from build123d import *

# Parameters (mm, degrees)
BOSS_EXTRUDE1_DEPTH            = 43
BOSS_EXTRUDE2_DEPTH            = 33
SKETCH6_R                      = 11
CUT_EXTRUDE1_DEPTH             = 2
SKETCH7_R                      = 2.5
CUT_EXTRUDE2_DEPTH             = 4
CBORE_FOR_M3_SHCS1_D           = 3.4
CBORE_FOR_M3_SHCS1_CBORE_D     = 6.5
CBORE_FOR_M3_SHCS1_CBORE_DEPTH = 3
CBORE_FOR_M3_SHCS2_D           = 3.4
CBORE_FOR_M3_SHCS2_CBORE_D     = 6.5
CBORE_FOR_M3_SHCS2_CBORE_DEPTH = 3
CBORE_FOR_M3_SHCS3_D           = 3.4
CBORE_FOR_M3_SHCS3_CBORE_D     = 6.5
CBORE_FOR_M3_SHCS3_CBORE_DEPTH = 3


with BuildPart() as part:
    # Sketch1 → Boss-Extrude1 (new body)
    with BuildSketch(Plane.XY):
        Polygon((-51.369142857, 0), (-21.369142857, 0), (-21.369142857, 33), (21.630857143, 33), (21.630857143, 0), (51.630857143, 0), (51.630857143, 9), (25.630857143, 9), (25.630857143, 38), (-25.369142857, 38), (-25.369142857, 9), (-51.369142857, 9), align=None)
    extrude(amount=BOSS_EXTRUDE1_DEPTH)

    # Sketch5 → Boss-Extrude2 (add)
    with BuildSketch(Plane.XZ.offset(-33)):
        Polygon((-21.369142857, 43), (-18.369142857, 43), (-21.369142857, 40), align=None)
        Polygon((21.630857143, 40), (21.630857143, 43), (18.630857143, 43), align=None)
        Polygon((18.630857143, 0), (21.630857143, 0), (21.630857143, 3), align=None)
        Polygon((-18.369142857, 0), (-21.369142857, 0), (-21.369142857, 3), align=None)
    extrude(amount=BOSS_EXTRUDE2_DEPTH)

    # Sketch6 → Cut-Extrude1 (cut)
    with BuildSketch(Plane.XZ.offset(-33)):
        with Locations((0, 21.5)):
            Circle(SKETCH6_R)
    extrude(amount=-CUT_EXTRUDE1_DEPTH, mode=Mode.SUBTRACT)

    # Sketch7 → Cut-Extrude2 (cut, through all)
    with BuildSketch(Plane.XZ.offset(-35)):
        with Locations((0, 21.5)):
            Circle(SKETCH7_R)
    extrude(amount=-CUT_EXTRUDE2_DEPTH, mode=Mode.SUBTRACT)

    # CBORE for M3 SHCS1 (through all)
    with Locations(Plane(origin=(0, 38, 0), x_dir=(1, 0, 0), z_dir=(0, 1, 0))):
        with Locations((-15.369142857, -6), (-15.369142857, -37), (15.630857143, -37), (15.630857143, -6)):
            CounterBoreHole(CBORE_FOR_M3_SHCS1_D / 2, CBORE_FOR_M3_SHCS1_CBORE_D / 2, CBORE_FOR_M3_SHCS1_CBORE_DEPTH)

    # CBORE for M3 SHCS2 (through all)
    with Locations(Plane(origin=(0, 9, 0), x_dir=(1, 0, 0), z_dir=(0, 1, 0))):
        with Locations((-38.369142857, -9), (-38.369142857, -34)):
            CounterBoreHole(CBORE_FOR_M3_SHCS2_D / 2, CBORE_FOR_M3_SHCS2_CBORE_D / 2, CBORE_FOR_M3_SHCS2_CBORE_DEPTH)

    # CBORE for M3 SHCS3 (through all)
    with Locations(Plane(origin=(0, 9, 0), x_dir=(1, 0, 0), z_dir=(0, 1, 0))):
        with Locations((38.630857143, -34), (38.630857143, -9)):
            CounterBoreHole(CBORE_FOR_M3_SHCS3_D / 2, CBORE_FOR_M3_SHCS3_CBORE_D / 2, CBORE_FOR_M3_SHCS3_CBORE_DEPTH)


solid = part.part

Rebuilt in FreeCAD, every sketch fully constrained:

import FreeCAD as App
import Part
import Sketcher
Q = App.Units.Quantity

doc = App.newDocument("Part")
body = doc.addObject("PartDesign::Body", "Body")

# Sketch on XY plane
sketch1 = doc.addObject("Sketcher::SketchObject", "Sketch")
body.addObject(sketch1)
sketch1.AttachmentSupport = (doc.XY_Plane, [""])
sketch1.MapMode = "FlatFace"
sketch1.addGeometry([
    Part.LineSegment(App.Vector(-51, 0, 0), App.Vector(-21, 0, 0)),  # 0
    Part.LineSegment(App.Vector(-21, 0, 0), App.Vector(-21, 33, 0)),  # 1
    Part.LineSegment(App.Vector(-21, 33, 0), App.Vector(22, 33, 0)),  # 2
    Part.LineSegment(App.Vector(22, 33, 0), App.Vector(22, 0, 0)),  # 3
    Part.LineSegment(App.Vector(22, 0, 0), App.Vector(52, 0, 0)),  # 4
    Part.LineSegment(App.Vector(52, 0, 0), App.Vector(52, 9, 0)),  # 5
    Part.LineSegment(App.Vector(52, 9, 0), App.Vector(26, 9, 0)),  # 6
    Part.LineSegment(App.Vector(26, 9, 0), App.Vector(26, 38, 0)),  # 7
    Part.LineSegment(App.Vector(26, 38, 0), App.Vector(-25, 38, 0)),  # 8
    Part.LineSegment(App.Vector(-25, 38, 0), App.Vector(-25, 9, 0)),  # 9
    Part.LineSegment(App.Vector(-25, 9, 0), App.Vector(-51, 9, 0)),  # 10
    Part.LineSegment(App.Vector(-51, 9, 0), App.Vector(-51, 0, 0)),  # 11
], False)
sketch1.addConstraint([
    Sketcher.Constraint("Coincident", 0, 2, 1, 1),
    Sketcher.Constraint("Coincident", 1, 2, 2, 1),
    Sketcher.Constraint("Coincident", 2, 2, 3, 1),
    Sketcher.Constraint("Coincident", 3, 2, 4, 1),
    Sketcher.Constraint("Coincident", 4, 2, 5, 1),
    Sketcher.Constraint("Coincident", 5, 2, 6, 1),
    Sketcher.Constraint("Coincident", 6, 2, 7, 1),
    Sketcher.Constraint("Coincident", 7, 2, 8, 1),
    Sketcher.Constraint("Coincident", 8, 2, 9, 1),
    Sketcher.Constraint("Coincident", 9, 2, 10, 1),
    Sketcher.Constraint("Coincident", 10, 2, 11, 1),
    Sketcher.Constraint("Coincident", 11, 2, 0, 1),
    Sketcher.Constraint("Horizontal", 0),
    Sketcher.Constraint("Vertical", 1),
    Sketcher.Constraint("Horizontal", 2),
    Sketcher.Constraint("Vertical", 3),
    Sketcher.Constraint("Horizontal", 4),
    Sketcher.Constraint("Vertical", 5),
    Sketcher.Constraint("Horizontal", 6),
    Sketcher.Constraint("Vertical", 7),
    Sketcher.Constraint("Horizontal", 8),
    Sketcher.Constraint("Vertical", 9),
    Sketcher.Constraint("Horizontal", 10),
    Sketcher.Constraint("Vertical", 11),
    Sketcher.Constraint("PointOnObject", 0, 2, -1),
    Sketcher.Constraint("PointOnObject", 3, 2, -1),
    Sketcher.Constraint("Horizontal", 6, 2, 9, 2),
    Sketcher.Constraint("Equal", 0, 4),
    Sketcher.Constraint("Equal", 6, 10),
    Sketcher.Constraint("DistanceX", 0, 1, 0, 2, Q("30 mm")),
    Sketcher.Constraint("DistanceX", 2, 1, 2, 2, Q("43 mm")),
    Sketcher.Constraint("DistanceX", 6, 2, 6, 1, Q("26 mm")),
    Sketcher.Constraint("DistanceY", 1, 1, 1, 2, Q("33 mm")),
    Sketcher.Constraint("DistanceY", 5, 1, 5, 2, Q("9 mm")),
    Sketcher.Constraint("DistanceY", 7, 1, 7, 2, Q("29 mm")),
    Sketcher.Constraint("DistanceX", 0, 2, -1, 1, Q("21.369143 mm")),
])
pad1 = doc.addObject("PartDesign::Pad", "Pad")
body.addObject(pad1)
pad1.Profile = sketch1
pad1.Length = 43

# Sketch on XZ plane
sketch2 = doc.addObject("Sketcher::SketchObject", "Sketch001")
body.addObject(sketch2)
sketch2.AttachmentSupport = (doc.XZ_Plane, [""])
sketch2.MapMode = "FlatFace"
sketch2.AttachmentOffset = App.Placement(App.Vector(0, 0, -33), App.Rotation())
sketch2.addGeometry([
    Part.LineSegment(App.Vector(-18.4, 43, 0), App.Vector(-21.4, 43, 0)),  # 0
    Part.LineSegment(App.Vector(-21.4, 43, 0), App.Vector(-21.4, 40, 0)),  # 1
    Part.LineSegment(App.Vector(-21.4, 40, 0), App.Vector(-18.4, 43, 0)),  # 2
    Part.LineSegment(App.Vector(21.6, 40, 0), App.Vector(21.6, 43, 0)),  # 3
    Part.LineSegment(App.Vector(21.6, 43, 0), App.Vector(18.6, 43, 0)),  # 4
    Part.LineSegment(App.Vector(18.6, 43, 0), App.Vector(21.6, 40, 0)),  # 5
    Part.LineSegment(App.Vector(18.6, 0, 0), App.Vector(21.6, 0, 0)),  # 6
    Part.LineSegment(App.Vector(21.6, 0, 0), App.Vector(21.6, 3, 0)),  # 7
    Part.LineSegment(App.Vector(21.6, 3, 0), App.Vector(18.6, 0, 0)),  # 8
    Part.LineSegment(App.Vector(-21.4, 0, 0), App.Vector(-18.4, 0, 0)),  # 9
    Part.LineSegment(App.Vector(-18.4, 0, 0), App.Vector(-21.4, 3, 0)),  # 10
    Part.LineSegment(App.Vector(-21.4, 3, 0), App.Vector(-21.4, 0, 0)),  # 11
], False)
sketch2.addConstraint([
    Sketcher.Constraint("Coincident", 0, 2, 1, 1),
    Sketcher.Constraint("Coincident", 1, 2, 2, 1),
    Sketcher.Constraint("Coincident", 2, 2, 0, 1),
    Sketcher.Constraint("Coincident", 3, 2, 4, 1),
    Sketcher.Constraint("Coincident", 4, 2, 5, 1),
    Sketcher.Constraint("Coincident", 5, 2, 3, 1),
    Sketcher.Constraint("Coincident", 6, 2, 7, 1),
    Sketcher.Constraint("Coincident", 7, 2, 8, 1),
    Sketcher.Constraint("Coincident", 8, 2, 6, 1),
    Sketcher.Constraint("Coincident", 9, 2, 10, 1),
    Sketcher.Constraint("Coincident", 10, 2, 11, 1),
    Sketcher.Constraint("Coincident", 11, 2, 9, 1),
    Sketcher.Constraint("Horizontal", 0),
    Sketcher.Constraint("Vertical", 1),
    Sketcher.Constraint("Vertical", 3),
    Sketcher.Constraint("Horizontal", 4),
    Sketcher.Constraint("Horizontal", 6),
    Sketcher.Constraint("Vertical", 7),
    Sketcher.Constraint("Horizontal", 9),
    Sketcher.Constraint("Vertical", 11),
    Sketcher.Constraint("PointOnObject", 6, 2, -1),
    Sketcher.Constraint("PointOnObject", 9, 2, -1),
    Sketcher.Constraint("Perpendicular", 2, 5),
    Sketcher.Constraint("Perpendicular", 5, 8),
    Sketcher.Constraint("Perpendicular", 8, 10),
    Sketcher.Constraint("Horizontal", 2, 2, 3, 2),
    Sketcher.Constraint("Horizontal", 1, 2, 5, 2),
    Sketcher.Constraint("Horizontal", 7, 2, 10, 2),
    Sketcher.Constraint("Vertical", 5, 2, 6, 2),
    Sketcher.Constraint("Vertical", 4, 2, 8, 2),
    Sketcher.Constraint("Vertical", 2, 2, 9, 2),
    Sketcher.Constraint("Vertical", 1, 2, 10, 2),
    Sketcher.Constraint("DistanceX", 0, 2, 0, 1, Q("3 mm")),
    Sketcher.Constraint("DistanceY", -1, 1, 0, 2, Q("43 mm")),
    Sketcher.Constraint("DistanceX", 2, 2, 3, 2, Q("40 mm")),
    Sketcher.Constraint("DistanceX", 0, 2, -1, 1, Q("21.369143 mm")),
])
pad2 = doc.addObject("PartDesign::Pad", "Pad001")
body.addObject(pad2)
pad2.Profile = sketch2
pad2.Length = 33

# Sketch on XZ plane
sketch3 = doc.addObject("Sketcher::SketchObject", "Sketch002")
body.addObject(sketch3)
sketch3.AttachmentSupport = (doc.XZ_Plane, [""])
sketch3.MapMode = "FlatFace"
sketch3.AttachmentOffset = App.Placement(App.Vector(0, 0, -33), App.Rotation())
sketch3.addGeometry(Part.Circle(App.Vector(0, 22, 0), App.Vector(0, 0, 1), 11), False)
sketch3.addConstraint([
    Sketcher.Constraint("PointOnObject", 0, 3, -2),
    Sketcher.Constraint("Diameter", 0, Q("22 mm")),
    Sketcher.Constraint("DistanceY", -1, 1, 0, 3, Q("21.5 mm")),
])
pocket1 = doc.addObject("PartDesign::Pocket", "Pocket")
body.addObject(pocket1)
pocket1.Profile = sketch3
pocket1.Length = 2

# Sketch on XZ plane
sketch4 = doc.addObject("Sketcher::SketchObject", "Sketch003")
body.addObject(sketch4)
sketch4.AttachmentSupport = (doc.XZ_Plane, [""])
sketch4.MapMode = "FlatFace"
sketch4.AttachmentOffset = App.Placement(App.Vector(0, 0, -35), App.Rotation())
sketch4.addGeometry(Part.Circle(App.Vector(0, 21.5, 0), App.Vector(0, 0, 1), 2.5), False)
sketch4.addConstraint([
    Sketcher.Constraint("PointOnObject", 0, 3, -2),
    Sketcher.Constraint("Diameter", 0, Q("5 mm")),
    Sketcher.Constraint("DistanceY", -1, 1, 0, 3, Q("21.5 mm")),
])
pocket2 = doc.addObject("PartDesign::Pocket", "Pocket001")
body.addObject(pocket2)
pocket2.Profile = sketch4
pocket2.Type = "ThroughAll"

# Sketch on XZ plane
sketch5 = doc.addObject("Sketcher::SketchObject", "Sketch004")
body.addObject(sketch5)
sketch5.AttachmentSupport = (doc.XZ_Plane, [""])
sketch5.MapMode = "FlatFace"
sketch5.AttachmentOffset = App.Placement(App.Vector(0, 0, -38), App.Rotation())
sketch5.addGeometry([
    Part.Circle(App.Vector(-15.4, 6, 0), App.Vector(0, 0, 1), 1.7),
    Part.Circle(App.Vector(-15.4, 37, 0), App.Vector(0, 0, 1), 1.7),
    Part.Circle(App.Vector(15.6, 37, 0), App.Vector(0, 0, 1), 1.7),
    Part.Circle(App.Vector(15.6, 6, 0), App.Vector(0, 0, 1), 1.7),
], False)
sketch5.addConstraint([
    Sketcher.Constraint("Equal", 0, 1),
    Sketcher.Constraint("Equal", 1, 2),
    Sketcher.Constraint("Equal", 2, 3),
    Sketcher.Constraint("Horizontal", 1, 3, 2, 3),
    Sketcher.Constraint("Horizontal", 0, 3, 3, 3),
    Sketcher.Constraint("Vertical", 0, 3, 1, 3),
    Sketcher.Constraint("Vertical", 2, 3, 3, 3),
    Sketcher.Constraint("Diameter", 0, Q("3.4 mm")),
    Sketcher.Constraint("DistanceY", -1, 1, 0, 3, Q("6 mm")),
    Sketcher.Constraint("DistanceY", -1, 1, 1, 3, Q("37 mm")),
    Sketcher.Constraint("DistanceX", 1, 3, 2, 3, Q("31 mm")),
    Sketcher.Constraint("DistanceX", 0, 3, -1, 1, Q("15.369143 mm")),
])
doc.recompute()
hole = doc.addObject("PartDesign::Hole", "Hole")
body.addObject(hole)
hole.Profile = sketch5
hole.ThreadType = "None"
hole.Diameter = 3.4
hole.DepthType = "ThroughAll"
hole.HoleCutType = "Counterbore"
hole.HoleCutDiameter = 6.5
hole.HoleCutDepth = 3
hole.Reversed = True

# Sketch on XZ plane
sketch6 = doc.addObject("Sketcher::SketchObject", "Sketch005")
body.addObject(sketch6)
sketch6.AttachmentSupport = (doc.XZ_Plane, [""])
sketch6.MapMode = "FlatFace"
sketch6.AttachmentOffset = App.Placement(App.Vector(0, 0, -9), App.Rotation())
sketch6.addGeometry([
    Part.Circle(App.Vector(-38.4, 9, 0), App.Vector(0, 0, 1), 1.7),
    Part.Circle(App.Vector(-38.4, 34, 0), App.Vector(0, 0, 1), 1.7),
], False)
sketch6.addConstraint([
    Sketcher.Constraint("Equal", 0, 1),
    Sketcher.Constraint("Vertical", 0, 3, 1, 3),
    Sketcher.Constraint("Diameter", 0, Q("3.4 mm")),
    Sketcher.Constraint("DistanceY", -1, 1, 0, 3, Q("9 mm")),
    Sketcher.Constraint("DistanceY", -1, 1, 1, 3, Q("34 mm")),
    Sketcher.Constraint("DistanceX", 0, 3, -1, 1, Q("38.369143 mm")),
])
doc.recompute()
hole2 = doc.addObject("PartDesign::Hole", "Hole001")
body.addObject(hole2)
hole2.Profile = sketch6
hole2.ThreadType = "None"
hole2.Diameter = 3.4
hole2.DepthType = "ThroughAll"
hole2.HoleCutType = "Counterbore"
hole2.HoleCutDiameter = 6.5
hole2.HoleCutDepth = 3
hole2.Reversed = True

# Sketch on XZ plane
sketch7 = doc.addObject("Sketcher::SketchObject", "Sketch006")
body.addObject(sketch7)
sketch7.AttachmentSupport = (doc.XZ_Plane, [""])
sketch7.MapMode = "FlatFace"
sketch7.AttachmentOffset = App.Placement(App.Vector(0, 0, -9), App.Rotation())
sketch7.addGeometry([
    Part.Circle(App.Vector(38.6, 34, 0), App.Vector(0, 0, 1), 1.7),
    Part.Circle(App.Vector(38.6, 9, 0), App.Vector(0, 0, 1), 1.7),
], False)
sketch7.addConstraint([
    Sketcher.Constraint("Equal", 0, 1),
    Sketcher.Constraint("Vertical", 0, 3, 1, 3),
    Sketcher.Constraint("Diameter", 0, Q("3.4 mm")),
    Sketcher.Constraint("DistanceY", -1, 1, 0, 3, Q("34 mm")),
    Sketcher.Constraint("DistanceY", -1, 1, 1, 3, Q("9 mm")),
    Sketcher.Constraint("DistanceX", -1, 1, 0, 3, Q("38.630857 mm")),
])
doc.recompute()
hole3 = doc.addObject("PartDesign::Hole", "Hole002")
body.addObject(hole3)
hole3.Profile = sketch7
hole3.ThreadType = "None"
hole3.Diameter = 3.4
hole3.DepthType = "ThroughAll"
hole3.HoleCutType = "Counterbore"
hole3.HoleCutDiameter = 6.5
hole3.HoleCutDepth = 3
hole3.Reversed = True

doc.recompute()
